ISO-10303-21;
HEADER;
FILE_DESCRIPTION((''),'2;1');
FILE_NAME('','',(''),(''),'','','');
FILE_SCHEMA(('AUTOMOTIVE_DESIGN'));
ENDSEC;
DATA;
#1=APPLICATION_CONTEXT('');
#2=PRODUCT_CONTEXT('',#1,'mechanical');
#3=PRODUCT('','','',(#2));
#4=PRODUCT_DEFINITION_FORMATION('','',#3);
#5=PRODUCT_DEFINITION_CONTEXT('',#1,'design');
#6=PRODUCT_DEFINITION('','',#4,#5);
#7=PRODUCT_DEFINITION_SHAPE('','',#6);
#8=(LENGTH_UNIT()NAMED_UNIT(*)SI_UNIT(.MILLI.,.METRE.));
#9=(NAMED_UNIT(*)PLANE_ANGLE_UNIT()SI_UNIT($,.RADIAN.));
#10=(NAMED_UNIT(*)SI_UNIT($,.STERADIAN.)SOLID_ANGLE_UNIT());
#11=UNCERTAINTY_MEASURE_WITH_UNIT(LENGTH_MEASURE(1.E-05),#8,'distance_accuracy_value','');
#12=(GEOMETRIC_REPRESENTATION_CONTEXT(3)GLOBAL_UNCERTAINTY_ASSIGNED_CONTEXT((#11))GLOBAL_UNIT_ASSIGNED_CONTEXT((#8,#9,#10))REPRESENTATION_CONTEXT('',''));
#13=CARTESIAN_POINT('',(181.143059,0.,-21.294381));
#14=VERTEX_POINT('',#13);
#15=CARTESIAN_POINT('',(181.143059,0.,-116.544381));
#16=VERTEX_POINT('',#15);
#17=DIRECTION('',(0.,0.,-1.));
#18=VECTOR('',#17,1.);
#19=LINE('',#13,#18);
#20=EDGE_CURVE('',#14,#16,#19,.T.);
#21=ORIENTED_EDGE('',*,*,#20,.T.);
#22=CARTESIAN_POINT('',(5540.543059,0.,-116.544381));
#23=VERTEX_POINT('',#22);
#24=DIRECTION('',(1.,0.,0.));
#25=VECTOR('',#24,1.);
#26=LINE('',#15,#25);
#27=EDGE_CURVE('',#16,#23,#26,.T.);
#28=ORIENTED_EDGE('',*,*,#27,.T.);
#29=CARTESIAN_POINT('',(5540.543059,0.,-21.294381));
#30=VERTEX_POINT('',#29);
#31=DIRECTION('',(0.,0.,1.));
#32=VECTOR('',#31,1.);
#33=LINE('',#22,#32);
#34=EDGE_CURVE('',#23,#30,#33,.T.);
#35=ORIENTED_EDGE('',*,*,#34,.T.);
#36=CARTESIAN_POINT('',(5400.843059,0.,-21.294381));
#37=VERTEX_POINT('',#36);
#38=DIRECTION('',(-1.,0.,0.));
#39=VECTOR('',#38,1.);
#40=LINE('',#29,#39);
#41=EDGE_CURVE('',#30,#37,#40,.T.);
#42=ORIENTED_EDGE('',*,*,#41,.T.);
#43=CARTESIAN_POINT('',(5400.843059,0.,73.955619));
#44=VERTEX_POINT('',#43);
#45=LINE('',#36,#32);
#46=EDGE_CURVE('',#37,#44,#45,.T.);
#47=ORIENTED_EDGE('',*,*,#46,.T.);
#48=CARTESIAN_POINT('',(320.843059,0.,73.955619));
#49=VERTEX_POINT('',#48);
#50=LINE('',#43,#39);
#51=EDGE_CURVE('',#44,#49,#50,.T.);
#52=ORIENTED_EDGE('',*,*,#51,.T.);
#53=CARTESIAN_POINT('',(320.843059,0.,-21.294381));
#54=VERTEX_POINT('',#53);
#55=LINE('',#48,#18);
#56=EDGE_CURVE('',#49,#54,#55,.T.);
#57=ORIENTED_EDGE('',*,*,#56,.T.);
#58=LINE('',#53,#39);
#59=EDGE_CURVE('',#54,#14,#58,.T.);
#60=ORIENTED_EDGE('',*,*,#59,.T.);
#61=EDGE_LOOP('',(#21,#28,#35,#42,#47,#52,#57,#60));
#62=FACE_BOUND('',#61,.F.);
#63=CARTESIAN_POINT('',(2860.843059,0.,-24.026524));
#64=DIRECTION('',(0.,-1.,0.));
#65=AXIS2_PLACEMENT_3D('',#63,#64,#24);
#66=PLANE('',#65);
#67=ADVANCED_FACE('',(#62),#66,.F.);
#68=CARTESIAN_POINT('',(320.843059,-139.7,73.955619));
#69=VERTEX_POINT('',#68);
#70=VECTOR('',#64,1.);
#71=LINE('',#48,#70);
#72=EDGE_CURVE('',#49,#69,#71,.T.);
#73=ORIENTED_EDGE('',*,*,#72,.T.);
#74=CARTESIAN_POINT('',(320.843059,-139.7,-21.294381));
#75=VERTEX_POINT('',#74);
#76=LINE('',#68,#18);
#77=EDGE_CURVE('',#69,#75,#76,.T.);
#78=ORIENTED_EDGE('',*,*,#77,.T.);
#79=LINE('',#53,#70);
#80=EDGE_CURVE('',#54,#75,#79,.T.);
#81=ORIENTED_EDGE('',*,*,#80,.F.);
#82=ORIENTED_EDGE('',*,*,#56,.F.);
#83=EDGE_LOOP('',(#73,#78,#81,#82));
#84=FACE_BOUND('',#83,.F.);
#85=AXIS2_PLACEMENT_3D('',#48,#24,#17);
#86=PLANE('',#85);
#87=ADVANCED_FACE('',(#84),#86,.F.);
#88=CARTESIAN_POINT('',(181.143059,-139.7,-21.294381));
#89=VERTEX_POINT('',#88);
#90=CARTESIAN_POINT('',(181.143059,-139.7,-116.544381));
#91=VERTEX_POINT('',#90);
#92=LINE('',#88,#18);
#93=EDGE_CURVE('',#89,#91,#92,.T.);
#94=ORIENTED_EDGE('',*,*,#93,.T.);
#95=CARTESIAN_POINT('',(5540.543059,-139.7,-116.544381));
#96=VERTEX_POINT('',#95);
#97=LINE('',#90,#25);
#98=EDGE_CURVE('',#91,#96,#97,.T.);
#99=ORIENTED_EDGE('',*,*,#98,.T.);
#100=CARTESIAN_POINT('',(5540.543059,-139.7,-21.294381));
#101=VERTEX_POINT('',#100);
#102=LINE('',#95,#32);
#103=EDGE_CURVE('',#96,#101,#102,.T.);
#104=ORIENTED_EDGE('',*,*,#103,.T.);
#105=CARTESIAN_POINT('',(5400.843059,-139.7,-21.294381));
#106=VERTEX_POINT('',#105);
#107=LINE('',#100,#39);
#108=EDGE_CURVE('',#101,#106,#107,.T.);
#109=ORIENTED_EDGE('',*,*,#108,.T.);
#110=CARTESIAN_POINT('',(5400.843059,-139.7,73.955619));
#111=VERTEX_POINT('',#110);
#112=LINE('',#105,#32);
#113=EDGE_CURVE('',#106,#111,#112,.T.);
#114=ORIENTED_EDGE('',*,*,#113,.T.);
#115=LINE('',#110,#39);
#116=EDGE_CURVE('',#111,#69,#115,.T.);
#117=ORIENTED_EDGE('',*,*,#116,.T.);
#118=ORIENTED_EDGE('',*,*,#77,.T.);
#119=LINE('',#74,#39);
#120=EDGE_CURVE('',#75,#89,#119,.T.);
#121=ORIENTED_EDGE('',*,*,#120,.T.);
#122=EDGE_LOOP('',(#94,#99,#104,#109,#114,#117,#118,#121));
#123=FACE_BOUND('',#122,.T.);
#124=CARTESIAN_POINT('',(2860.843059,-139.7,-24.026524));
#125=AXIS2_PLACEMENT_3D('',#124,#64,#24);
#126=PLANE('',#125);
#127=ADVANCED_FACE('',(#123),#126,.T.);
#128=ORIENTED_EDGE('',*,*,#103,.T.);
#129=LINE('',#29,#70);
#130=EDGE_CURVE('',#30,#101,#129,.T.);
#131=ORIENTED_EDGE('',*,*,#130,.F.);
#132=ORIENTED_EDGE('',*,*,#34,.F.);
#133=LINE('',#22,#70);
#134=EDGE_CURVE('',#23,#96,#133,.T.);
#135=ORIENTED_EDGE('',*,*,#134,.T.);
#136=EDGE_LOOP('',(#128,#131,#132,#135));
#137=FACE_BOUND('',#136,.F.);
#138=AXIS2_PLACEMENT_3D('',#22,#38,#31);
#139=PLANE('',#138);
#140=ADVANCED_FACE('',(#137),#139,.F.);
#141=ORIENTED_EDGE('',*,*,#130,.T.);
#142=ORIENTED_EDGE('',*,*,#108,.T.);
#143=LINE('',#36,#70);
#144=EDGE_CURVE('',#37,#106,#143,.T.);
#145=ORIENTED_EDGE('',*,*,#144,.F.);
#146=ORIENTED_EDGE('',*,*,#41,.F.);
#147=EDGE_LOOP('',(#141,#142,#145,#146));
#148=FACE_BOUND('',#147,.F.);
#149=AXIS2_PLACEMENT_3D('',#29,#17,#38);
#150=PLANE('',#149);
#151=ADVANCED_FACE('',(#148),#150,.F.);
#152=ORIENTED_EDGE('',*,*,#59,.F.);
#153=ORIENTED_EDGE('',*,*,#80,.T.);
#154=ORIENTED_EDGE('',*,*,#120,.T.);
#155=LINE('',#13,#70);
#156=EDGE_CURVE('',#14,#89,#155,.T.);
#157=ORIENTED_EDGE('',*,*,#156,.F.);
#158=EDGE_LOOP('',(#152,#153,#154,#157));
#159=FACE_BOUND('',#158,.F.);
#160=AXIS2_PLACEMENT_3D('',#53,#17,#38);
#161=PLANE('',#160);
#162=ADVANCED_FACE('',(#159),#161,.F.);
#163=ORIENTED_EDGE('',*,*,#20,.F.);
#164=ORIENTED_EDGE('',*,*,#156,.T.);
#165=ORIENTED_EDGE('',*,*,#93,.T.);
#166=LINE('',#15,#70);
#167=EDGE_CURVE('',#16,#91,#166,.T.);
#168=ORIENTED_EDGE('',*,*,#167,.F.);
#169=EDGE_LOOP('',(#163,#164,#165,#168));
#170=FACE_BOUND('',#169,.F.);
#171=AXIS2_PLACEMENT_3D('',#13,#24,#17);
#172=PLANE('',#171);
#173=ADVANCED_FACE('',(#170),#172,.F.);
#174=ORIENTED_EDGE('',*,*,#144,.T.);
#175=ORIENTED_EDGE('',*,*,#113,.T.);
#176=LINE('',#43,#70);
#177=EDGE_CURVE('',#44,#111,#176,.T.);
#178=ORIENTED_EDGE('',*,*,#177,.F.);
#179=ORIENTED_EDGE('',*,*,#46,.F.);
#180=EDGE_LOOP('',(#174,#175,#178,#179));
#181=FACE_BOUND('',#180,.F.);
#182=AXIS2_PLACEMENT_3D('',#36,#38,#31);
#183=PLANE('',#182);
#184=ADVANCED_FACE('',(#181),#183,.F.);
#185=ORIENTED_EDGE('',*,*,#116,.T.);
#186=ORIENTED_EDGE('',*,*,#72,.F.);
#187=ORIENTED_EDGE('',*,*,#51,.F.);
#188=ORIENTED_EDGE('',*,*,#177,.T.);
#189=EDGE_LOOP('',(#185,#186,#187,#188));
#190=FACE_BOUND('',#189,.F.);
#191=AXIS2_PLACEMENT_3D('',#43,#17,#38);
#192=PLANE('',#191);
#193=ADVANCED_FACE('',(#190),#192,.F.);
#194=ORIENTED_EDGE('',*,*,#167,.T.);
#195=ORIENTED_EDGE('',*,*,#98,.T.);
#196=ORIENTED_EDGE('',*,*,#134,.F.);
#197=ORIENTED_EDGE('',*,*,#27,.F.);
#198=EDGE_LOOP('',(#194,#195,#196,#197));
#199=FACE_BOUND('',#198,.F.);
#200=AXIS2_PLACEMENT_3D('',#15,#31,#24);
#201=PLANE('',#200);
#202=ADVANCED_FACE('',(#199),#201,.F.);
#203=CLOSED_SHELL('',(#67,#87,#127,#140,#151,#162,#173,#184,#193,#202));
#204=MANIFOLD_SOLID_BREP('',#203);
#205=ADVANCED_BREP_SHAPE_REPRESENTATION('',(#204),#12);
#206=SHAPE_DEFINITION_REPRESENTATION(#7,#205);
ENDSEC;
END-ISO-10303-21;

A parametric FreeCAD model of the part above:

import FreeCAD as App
import Part
import Sketcher
Q = App.Units.Quantity

doc = App.newDocument("Part")
body = doc.addObject("PartDesign::Body", "Body")

# Sketch on XZ plane
sketch1 = body.newObject("Sketcher::SketchObject", "Sketch")
sketch1.AttachmentSupport = (doc.getObject("XZ_Plane"), [""])
sketch1.MapMode = "FlatFace"
sketch1.addGeometry([
    Part.LineSegment(App.Vector(181, -21, 0), App.Vector(181, -117, 0)),  # 0
    Part.LineSegment(App.Vector(181, -117, 0), App.Vector(5541, -117, 0)),  # 1
    Part.LineSegment(App.Vector(5541, -117, 0), App.Vector(5541, -21, 0)),  # 2
    Part.LineSegment(App.Vector(5541, -21, 0), App.Vector(5401, -21, 0)),  # 3
    Part.LineSegment(App.Vector(5401, -21, 0), App.Vector(5401, 74, 0)),  # 4
    Part.LineSegment(App.Vector(5401, 74, 0), App.Vector(321, 74, 0)),  # 5
    Part.LineSegment(App.Vector(321, 74, 0), App.Vector(321, -21, 0)),  # 6
    Part.LineSegment(App.Vector(321, -21, 0), App.Vector(181, -21, 0)),  # 7
], False)
sketch1.addConstraint([
    Sketcher.Constraint("Coincident", 0, 2, 1, 1),
    Sketcher.Constraint("Coincident", 1, 2, 2, 1),
    Sketcher.Constraint("Coincident", 2, 2, 3, 1),
    Sketcher.Constraint("Coincident", 3, 2, 4, 1),
    Sketcher.Constraint("Coincident", 4, 2, 5, 1),
    Sketcher.Constraint("Coincident", 5, 2, 6, 1),
    Sketcher.Constraint("Coincident", 6, 2, 7, 1),
    Sketcher.Constraint("Coincident", 7, 2, 0, 1),
    Sketcher.Constraint("Vertical", 0),
    Sketcher.Constraint("Horizontal", 1),
    Sketcher.Constraint("Vertical", 2),
    Sketcher.Constraint("Horizontal", 3),
    Sketcher.Constraint("Vertical", 4),
    Sketcher.Constraint("Horizontal", 5),
    Sketcher.Constraint("Vertical", 6),
    Sketcher.Constraint("Horizontal", 7),
    Sketcher.Constraint("Horizontal", 3, 2, 6, 2),
    Sketcher.Constraint("Equal", 3, 7),
    Sketcher.Constraint("Equal", 2, 4),
    Sketcher.Constraint("DistanceX", 1, 1, 1, 2, Q("211 in")),
    Sketcher.Constraint("DistanceX", 5, 2, 5, 1, Q("200 in")),
    Sketcher.Constraint("DistanceY", 0, 2, 0, 1, Q("3.75 in")),
    Sketcher.Constraint("DistanceX", -1, 1, 0, 2, 181.143059),
    Sketcher.Constraint("DistanceY", 0, 2, -1, 1, 116.544381),
])
pad1 = body.newObject("PartDesign::Pad", "Pad")
pad1.Profile = sketch1
pad1.Length = Q("5.5 in")

doc.recompute()
